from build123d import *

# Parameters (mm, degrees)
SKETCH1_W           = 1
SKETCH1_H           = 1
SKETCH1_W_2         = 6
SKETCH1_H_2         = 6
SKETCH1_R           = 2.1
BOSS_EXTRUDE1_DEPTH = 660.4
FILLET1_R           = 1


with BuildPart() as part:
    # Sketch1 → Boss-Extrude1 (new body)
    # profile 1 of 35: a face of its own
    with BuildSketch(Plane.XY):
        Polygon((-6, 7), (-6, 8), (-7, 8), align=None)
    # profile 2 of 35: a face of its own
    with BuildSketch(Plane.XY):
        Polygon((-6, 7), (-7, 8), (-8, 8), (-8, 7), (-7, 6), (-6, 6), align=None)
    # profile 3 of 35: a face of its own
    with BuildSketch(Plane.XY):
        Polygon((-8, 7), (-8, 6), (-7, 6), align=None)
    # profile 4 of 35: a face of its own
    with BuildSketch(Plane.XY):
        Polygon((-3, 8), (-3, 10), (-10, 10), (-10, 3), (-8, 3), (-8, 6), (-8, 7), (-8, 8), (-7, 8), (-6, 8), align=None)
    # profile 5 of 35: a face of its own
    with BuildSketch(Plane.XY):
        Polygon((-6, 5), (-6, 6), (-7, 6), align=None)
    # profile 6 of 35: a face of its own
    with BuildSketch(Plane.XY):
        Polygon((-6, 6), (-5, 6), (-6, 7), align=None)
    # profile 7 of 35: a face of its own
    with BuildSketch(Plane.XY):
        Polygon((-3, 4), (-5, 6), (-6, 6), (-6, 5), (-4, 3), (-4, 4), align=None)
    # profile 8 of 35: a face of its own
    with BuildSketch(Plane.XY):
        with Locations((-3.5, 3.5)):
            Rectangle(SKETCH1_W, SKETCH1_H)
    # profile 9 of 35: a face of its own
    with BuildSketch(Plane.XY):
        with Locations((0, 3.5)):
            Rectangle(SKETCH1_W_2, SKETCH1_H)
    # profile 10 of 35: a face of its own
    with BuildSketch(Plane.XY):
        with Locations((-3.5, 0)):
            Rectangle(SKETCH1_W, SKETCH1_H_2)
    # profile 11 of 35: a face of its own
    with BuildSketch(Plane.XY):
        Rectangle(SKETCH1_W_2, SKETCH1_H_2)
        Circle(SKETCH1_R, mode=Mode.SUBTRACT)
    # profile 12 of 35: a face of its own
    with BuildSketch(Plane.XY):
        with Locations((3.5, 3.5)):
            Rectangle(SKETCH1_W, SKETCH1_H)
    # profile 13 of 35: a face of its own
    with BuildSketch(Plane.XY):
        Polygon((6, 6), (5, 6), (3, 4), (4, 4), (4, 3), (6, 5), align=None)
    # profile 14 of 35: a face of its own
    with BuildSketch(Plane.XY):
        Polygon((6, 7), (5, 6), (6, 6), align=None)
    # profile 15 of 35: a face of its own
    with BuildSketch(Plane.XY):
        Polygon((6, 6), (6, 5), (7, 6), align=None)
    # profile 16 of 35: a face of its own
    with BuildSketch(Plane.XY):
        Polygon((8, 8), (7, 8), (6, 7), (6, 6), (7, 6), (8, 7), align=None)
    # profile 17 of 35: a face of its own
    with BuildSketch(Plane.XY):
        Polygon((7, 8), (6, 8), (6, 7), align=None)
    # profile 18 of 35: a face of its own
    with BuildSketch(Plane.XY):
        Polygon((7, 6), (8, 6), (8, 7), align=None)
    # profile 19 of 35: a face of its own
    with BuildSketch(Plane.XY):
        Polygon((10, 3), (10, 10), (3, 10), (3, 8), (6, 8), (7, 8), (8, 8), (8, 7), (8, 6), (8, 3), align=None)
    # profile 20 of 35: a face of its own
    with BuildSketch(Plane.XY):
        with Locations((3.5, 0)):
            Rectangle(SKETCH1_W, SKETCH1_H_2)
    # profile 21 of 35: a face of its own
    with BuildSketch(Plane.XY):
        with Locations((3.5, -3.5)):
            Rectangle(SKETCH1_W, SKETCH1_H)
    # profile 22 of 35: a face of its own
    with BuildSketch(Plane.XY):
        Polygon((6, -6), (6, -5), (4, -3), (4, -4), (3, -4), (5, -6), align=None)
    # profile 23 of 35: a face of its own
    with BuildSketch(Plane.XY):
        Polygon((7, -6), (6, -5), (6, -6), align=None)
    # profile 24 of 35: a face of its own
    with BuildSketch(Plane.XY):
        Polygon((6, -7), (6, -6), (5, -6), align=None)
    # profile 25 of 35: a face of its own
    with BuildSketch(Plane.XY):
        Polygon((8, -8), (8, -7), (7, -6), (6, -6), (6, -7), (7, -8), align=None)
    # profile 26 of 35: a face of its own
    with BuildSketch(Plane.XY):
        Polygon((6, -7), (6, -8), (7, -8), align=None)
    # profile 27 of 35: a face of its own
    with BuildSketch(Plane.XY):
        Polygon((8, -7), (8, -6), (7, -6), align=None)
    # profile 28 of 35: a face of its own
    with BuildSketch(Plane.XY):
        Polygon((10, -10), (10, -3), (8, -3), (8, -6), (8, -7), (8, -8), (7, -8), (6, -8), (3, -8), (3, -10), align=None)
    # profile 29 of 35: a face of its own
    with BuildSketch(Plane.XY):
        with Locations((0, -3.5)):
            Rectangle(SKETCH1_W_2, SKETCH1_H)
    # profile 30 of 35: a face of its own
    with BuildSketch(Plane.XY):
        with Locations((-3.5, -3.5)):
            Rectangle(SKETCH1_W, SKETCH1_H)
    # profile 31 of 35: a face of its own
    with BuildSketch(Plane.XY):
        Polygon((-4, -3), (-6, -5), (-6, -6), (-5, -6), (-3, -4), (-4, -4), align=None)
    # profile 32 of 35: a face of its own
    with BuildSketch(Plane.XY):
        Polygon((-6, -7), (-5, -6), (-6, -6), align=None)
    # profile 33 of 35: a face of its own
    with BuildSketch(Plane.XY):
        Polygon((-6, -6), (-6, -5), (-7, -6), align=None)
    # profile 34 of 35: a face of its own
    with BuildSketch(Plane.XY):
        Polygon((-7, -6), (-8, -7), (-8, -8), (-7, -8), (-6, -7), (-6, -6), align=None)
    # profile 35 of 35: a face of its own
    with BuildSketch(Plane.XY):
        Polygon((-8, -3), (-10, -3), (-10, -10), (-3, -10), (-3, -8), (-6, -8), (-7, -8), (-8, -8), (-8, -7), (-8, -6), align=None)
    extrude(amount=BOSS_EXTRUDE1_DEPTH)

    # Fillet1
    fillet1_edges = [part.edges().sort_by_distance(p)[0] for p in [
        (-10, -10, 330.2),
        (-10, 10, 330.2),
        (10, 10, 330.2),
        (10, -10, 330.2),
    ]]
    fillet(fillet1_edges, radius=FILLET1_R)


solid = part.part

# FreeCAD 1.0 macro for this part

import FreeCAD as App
import Part
import Sketcher
from FreeCAD import Vector


def edges_at(feature, points):
    """Names of the edges that pass closest to the given points."""
    edges = feature.Shape.Edges
    near = lambda p: min(range(len(edges)), key=lambda i: edges[i].distToShape(Part.Vertex(*p))[0])
    return sorted({f"Edge{near(p) + 1}" for p in points})


def add_polygon(sketch, points):
    """Adds a closed chain of lines whose ends are joined by coincident constraints."""
    first, n = sketch.GeometryCount, len(points)
    for a, b in zip(points, points[1:] + points[:1]):
        sketch.addGeometry(Part.LineSegment(App.Vector(*a, 0), App.Vector(*b, 0)), False)
    for i in range(n):
        sketch.addConstraint(Sketcher.Constraint("Coincident", first + i, 2, first + (i + 1) % n, 1))

doc = App.newDocument("Part")
body = doc.addObject("PartDesign::Body", "Body")

# Sketch on XY plane
sketch1 = body.newObject("Sketcher::SketchObject", "Sketch")
sketch1.AttachmentSupport = (doc.getObject("XY_Plane"), [""])
sketch1.MapMode = "FlatFace"
add_polygon(sketch1, [(-6, 7), (-6, 8), (-3, 8), (-3, 10), (-10, 10), (-10, 3), (-8, 3), (-8, 6), (-7, 6), (-4, 3), (-4, -3), (-8, -7), (-8, -3), (-10, -3), (-10, -10), (-3, -10), (-3, -8), (-7, -8), (-3, -4), (3, -4), (6, -7), (6, -8), (3, -8), (3, -10), (10, -10), (10, -3), (8, -3), (8, -6), (7, -6), (4, -3), (4, 3), (7, 6), (8, 6), (8, 3), (10, 3), (10, 10), (3, 10), (3, 8), (6, 8), (6, 7), (3, 4), (-3, 4)])  # lines 0-41
sketch1.addGeometry(Part.Circle(Vector(0, 0, 0), Vector(0, 0, 1), 2.1), False)  # 42
sketch1.addConstraint(Sketcher.Constraint("Vertical", 0))
sketch1.addConstraint(Sketcher.Constraint("Horizontal", 1))
sketch1.addConstraint(Sketcher.Constraint("Vertical", 2))
sketch1.addConstraint(Sketcher.Constraint("Horizontal", 3))
sketch1.addConstraint(Sketcher.Constraint("Vertical", 4))
sketch1.addConstraint(Sketcher.Constraint("Horizontal", 5))
sketch1.addConstraint(Sketcher.Constraint("Vertical", 6))
sketch1.addConstraint(Sketcher.Constraint("Horizontal", 7))
sketch1.addConstraint(Sketcher.Constraint("Vertical", 9))
sketch1.addConstraint(Sketcher.Constraint("Vertical", 11))
sketch1.addConstraint(Sketcher.Constraint("Horizontal", 12))
sketch1.addConstraint(Sketcher.Constraint("Vertical", 13))
sketch1.addConstraint(Sketcher.Constraint("Horizontal", 14))
sketch1.addConstraint(Sketcher.Constraint("Vertical", 15))
sketch1.addConstraint(Sketcher.Constraint("Horizontal", 16))
sketch1.addConstraint(Sketcher.Constraint("Horizontal", 18))
sketch1.addConstraint(Sketcher.Constraint("Vertical", 20))
sketch1.addConstraint(Sketcher.Constraint("Horizontal", 21))
sketch1.addConstraint(Sketcher.Constraint("Vertical", 22))
sketch1.addConstraint(Sketcher.Constraint("Horizontal", 23))
sketch1.addConstraint(Sketcher.Constraint("Vertical", 24))
sketch1.addConstraint(Sketcher.Constraint("Horizontal", 25))
sketch1.addConstraint(Sketcher.Constraint("Vertical", 26))
sketch1.addConstraint(Sketcher.Constraint("Horizontal", 27))
sketch1.addConstraint(Sketcher.Constraint("Vertical", 29))
sketch1.addConstraint(Sketcher.Constraint("Horizontal", 31))
sketch1.addConstraint(Sketcher.Constraint("Vertical", 32))
sketch1.addConstraint(Sketcher.Constraint("Horizontal", 33))
sketch1.addConstraint(Sketcher.Constraint("Vertical", 34))
sketch1.addConstraint(Sketcher.Constraint("Horizontal", 35))
sketch1.addConstraint(Sketcher.Constraint("Vertical", 36))
sketch1.addConstraint(Sketcher.Constraint("Horizontal", 37))
sketch1.addConstraint(Sketcher.Constraint("Vertical", 38))
sketch1.addConstraint(Sketcher.Constraint("Horizontal", 40))
sketch1.addConstraint(Sketcher.Constraint("Coincident", 42, 3, -1, 1))
sketch1.addConstraint(Sketcher.Constraint("Symmetric", 0, 2, 20, 2, -1, 1))
sketch1.addConstraint(Sketcher.Constraint("Symmetric", 2, 2, 22, 2, -1, 1))
sketch1.addConstraint(Sketcher.Constraint("Symmetric", 4, 2, 24, 2, -1, 1))
sketch1.addConstraint(Sketcher.Constraint("Symmetric", 6, 2, 26, 2, -1, 1))
sketch1.addConstraint(Sketcher.Constraint("Symmetric", 8, 2, 28, 2, -1, 1))
sketch1.addConstraint(Sketcher.Constraint("Symmetric", 11, 2, 32, 2, -1, 1))
sketch1.addConstraint(Sketcher.Constraint("Symmetric", 13, 2, 34, 2, -1, 1))
sketch1.addConstraint(Sketcher.Constraint("Symmetric", 15, 2, 36, 2, -1, 1))
sketch1.addConstraint(Sketcher.Constraint("Symmetric", 17, 2, 39, 2, -1, 1))
sketch1.addConstraint(Sketcher.Constraint("Symmetric", 15, 2, 21, 2, -2))
sketch1.addConstraint(Sketcher.Constraint("Symmetric", 13, 2, 23, 2, -2))
sketch1.addConstraint(Sketcher.Constraint("Symmetric", 11, 2, 25, 2, -2))
sketch1.addConstraint(Sketcher.Constraint("Symmetric", 7, 2, 30, 2, -2))
sketch1.addConstraint(Sketcher.Constraint("Symmetric", 38, 2, 41, 2, -2))
sketch1.addConstraint(Sketcher.Constraint("Perpendicular", 8, 10))
sketch1.addConstraint(Sketcher.Constraint("Parallel", 10, 17))
sketch1.addConstraint(Sketcher.Constraint("Perpendicular", 17, 19))
sketch1.addConstraint(Sketcher.Constraint("Parallel", 19, 28))
sketch1.addConstraint(Sketcher.Constraint("Perpendicular", 28, 30))
sketch1.addConstraint(Sketcher.Constraint("Parallel", 30, 39))
sketch1.addConstraint(Sketcher.Constraint("Perpendicular", 39, 41))
sketch1.addConstraint(Sketcher.Constraint("Horizontal", 5, 2, 8, 2))
sketch1.addConstraint(Sketcher.Constraint("Horizontal", 9, 2, 11, 2))
sketch1.addConstraint(Sketcher.Constraint("Horizontal", 10, 2, 19, 2))
sketch1.addConstraint(Sketcher.Constraint("Horizontal", 8, 2, 29, 2))
sketch1.addConstraint(Sketcher.Constraint("Vertical", 7, 2, 16, 2))
sketch1.addConstraint(Sketcher.Constraint("Vertical", 15, 2, 17, 2))
sketch1.addConstraint(Sketcher.Constraint("Vertical", 18, 2, 21, 2))
sketch1.addConstraint(Sketcher.Constraint("Equal", 31, 0))
sketch1.addConstraint(Sketcher.Constraint("Equal", 33, 2))
sketch1.addConstraint(Sketcher.Constraint("Equal", 35, 4))
sketch1.addConstraint(Sketcher.Constraint("Equal", 40, 9))
sketch1.addConstraint(Sketcher.Constraint("Diameter", 42, 4.2))
sketch1.addConstraint(Sketcher.Constraint("DistanceX", 1, 1, 1, 2, 3.0))
sketch1.addConstraint(Sketcher.Constraint("DistanceX", 3, 2, 3, 1, 7.0))
sketch1.addConstraint(Sketcher.Constraint("DistanceX", 5, 1, 5, 2, 2.0))
sketch1.addConstraint(Sketcher.Constraint("DistanceX", 18, 1, 18, 2, 6.0))
pad1 = body.newObject("PartDesign::Pad", "Pad")
pad1.Profile = sketch1
pad1.Length = 660.4
doc.recompute()

fillet = body.newObject("PartDesign::Fillet", "Fillet")
fillet.Base = (pad1, edges_at(pad1, [
    (-10, -10, 330.2),
    (-10, 10, 330.2),
    (10, 10, 330.2),
    (10, -10, 330.2),
]))
fillet.Radius = 1

doc.recompute()
